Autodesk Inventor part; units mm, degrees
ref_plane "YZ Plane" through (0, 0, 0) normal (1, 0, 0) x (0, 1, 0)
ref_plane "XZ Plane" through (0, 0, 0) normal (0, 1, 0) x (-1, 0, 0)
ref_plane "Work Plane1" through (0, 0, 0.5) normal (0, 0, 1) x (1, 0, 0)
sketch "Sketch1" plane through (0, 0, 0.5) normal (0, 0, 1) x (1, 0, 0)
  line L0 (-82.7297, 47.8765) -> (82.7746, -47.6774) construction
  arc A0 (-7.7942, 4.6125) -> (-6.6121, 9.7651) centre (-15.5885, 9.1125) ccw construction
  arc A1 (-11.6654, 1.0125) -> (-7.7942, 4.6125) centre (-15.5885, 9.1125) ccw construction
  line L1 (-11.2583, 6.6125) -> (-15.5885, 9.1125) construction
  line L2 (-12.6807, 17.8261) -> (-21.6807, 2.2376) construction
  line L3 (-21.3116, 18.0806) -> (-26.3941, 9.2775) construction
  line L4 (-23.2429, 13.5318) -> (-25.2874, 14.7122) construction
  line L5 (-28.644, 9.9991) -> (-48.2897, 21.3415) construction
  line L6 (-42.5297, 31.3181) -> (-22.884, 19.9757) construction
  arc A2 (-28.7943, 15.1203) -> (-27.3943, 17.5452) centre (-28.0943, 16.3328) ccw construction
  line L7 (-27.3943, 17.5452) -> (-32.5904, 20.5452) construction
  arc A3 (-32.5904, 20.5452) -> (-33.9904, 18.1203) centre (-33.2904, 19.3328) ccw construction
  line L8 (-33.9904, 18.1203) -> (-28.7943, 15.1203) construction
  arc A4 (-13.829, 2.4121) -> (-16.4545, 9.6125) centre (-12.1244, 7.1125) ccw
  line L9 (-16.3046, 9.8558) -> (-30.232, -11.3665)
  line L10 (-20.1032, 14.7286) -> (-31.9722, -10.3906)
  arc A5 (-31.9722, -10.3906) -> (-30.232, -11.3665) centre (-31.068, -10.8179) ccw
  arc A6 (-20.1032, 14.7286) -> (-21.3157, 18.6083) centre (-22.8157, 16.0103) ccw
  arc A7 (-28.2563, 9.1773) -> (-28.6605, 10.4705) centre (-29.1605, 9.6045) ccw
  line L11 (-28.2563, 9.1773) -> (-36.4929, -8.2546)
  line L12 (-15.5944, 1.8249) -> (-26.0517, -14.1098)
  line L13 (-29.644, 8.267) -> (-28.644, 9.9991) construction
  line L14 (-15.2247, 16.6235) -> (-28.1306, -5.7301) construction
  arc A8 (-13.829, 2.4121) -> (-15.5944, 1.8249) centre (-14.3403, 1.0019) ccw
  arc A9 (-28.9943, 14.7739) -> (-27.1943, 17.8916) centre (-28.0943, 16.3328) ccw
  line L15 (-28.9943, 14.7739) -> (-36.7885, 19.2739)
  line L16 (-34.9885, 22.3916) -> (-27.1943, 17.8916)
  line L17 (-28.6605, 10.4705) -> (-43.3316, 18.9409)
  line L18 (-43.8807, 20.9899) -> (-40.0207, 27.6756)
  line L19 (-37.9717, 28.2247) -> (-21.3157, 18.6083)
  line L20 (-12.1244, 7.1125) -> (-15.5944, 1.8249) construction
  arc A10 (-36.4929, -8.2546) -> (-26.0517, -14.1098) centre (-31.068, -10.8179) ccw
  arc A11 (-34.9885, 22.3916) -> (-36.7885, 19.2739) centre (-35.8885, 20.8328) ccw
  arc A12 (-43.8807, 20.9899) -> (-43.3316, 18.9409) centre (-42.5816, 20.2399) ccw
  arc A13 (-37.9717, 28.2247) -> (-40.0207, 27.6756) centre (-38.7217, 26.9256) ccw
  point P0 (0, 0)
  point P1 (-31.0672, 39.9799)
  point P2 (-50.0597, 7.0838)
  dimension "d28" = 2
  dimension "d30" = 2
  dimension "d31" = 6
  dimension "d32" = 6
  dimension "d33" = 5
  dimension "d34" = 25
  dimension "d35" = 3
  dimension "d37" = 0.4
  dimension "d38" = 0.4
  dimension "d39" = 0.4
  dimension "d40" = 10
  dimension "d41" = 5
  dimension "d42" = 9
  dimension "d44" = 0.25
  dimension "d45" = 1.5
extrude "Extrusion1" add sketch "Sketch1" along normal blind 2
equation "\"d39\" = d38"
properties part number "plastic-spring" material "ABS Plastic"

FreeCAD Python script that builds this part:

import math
import FreeCAD as App
import Part
import Sketcher
Q = App.Units.Quantity

doc = App.newDocument("Part")
params = doc.addObject("Spreadsheet::Sheet", "Params")
for row, (alias, value) in enumerate([
    ("sketch1_radius", "5 mm"),
    ("sketch1_radius2", "1 mm"),
    ("sketch1_radius3", "3 mm"),
    ("sketch1_radius4", "6 mm"),
    ("sketch1_radius5", "1.5 mm"),
    ("pad1_length", "2 mm"),
], start=1):
    params.set(f"A{row}", alias)
    params.set(f"B{row}", "=" + value)
    params.setAlias(f"B{row}", alias)

body = doc.addObject("PartDesign::Body", "Body")

sketch1 = doc.addObject("Sketcher::SketchObject", "Sketch")
body.addObject(sketch1)
sketch1.AttachmentSupport = (doc.XY_Plane, [""])
sketch1.MapMode = "FlatFace"
sketch1.AttachmentOffset = App.Placement(App.Vector(0, 0, 0.5), App.Rotation())
sketch1.addGeometry(Part.ArcOfCircle(Part.Circle(App.Vector(-14.3403, 1.0019, 0), App.Vector(0, 0, 1), 1.500031), math.radians(70.070739), math.radians(146.725212)), False)
sketch1.addGeometry(Part.ArcOfCircle(Part.Circle(App.Vector(-12.1244, 7.1125, 0), App.Vector(0, 0, 1), 4.999942), math.radians(-109.933176), math.radians(146.724693)), False)
sketch1.addGeometry(Part.LineSegment(App.Vector(-16.3046, 9.8558, 0), App.Vector(-30.232, -11.3665, 0)), False)
sketch1.addGeometry(Part.ArcOfCircle(Part.Circle(App.Vector(-31.068, -10.8179, 0), App.Vector(0, 0, 1), 1.000081), math.radians(154.705873), math.radians(326.72631)), False)
sketch1.addGeometry(Part.LineSegment(App.Vector(-31.9722, -10.3906, 0), App.Vector(-20.1032, 14.7286, 0)), False)
sketch1.addGeometry(Part.ArcOfCircle(Part.Circle(App.Vector(-22.8157, 16.0103, 0), App.Vector(0, 0, 1), 3.000069), math.radians(-25.29149), math.radians(59.999272)), False)
sketch1.addGeometry(Part.LineSegment(App.Vector(-21.3157, 18.6083, 0), App.Vector(-37.9717, 28.2247, 0)), False)
sketch1.addGeometry(Part.ArcOfCircle(Part.Circle(App.Vector(-38.7217, 26.9256, 0), App.Vector(0, 0, 1), 1.500054), math.radians(60.001182), math.radians(149.999272)), False)
sketch1.addGeometry(Part.LineSegment(App.Vector(-40.0207, 27.6756, 0), App.Vector(-43.8807, 20.9899, 0)), False)
sketch1.addGeometry(Part.ArcOfCircle(Part.Circle(App.Vector(-42.5816, 20.2399, 0), App.Vector(0, 0, 1), 1.500054), math.radians(150.001182), math.radians(239.999272)), False)
sketch1.addGeometry(Part.LineSegment(App.Vector(-43.3316, 18.9409, 0), App.Vector(-28.6605, 10.4705, 0)), False)
sketch1.addGeometry(Part.ArcOfCircle(Part.Circle(App.Vector(-29.1605, 9.6045, 0), App.Vector(0, 0, 1), 1.000039), math.radians(-25.288947), math.radians(59.999272)), False)
sketch1.addGeometry(Part.LineSegment(App.Vector(-28.2563, 9.1773, 0), App.Vector(-36.4929, -8.2546, 0)), False)
sketch1.addGeometry(Part.ArcOfCircle(Part.Circle(App.Vector(-31.068, -10.8179, 0), App.Vector(0, 0, 1), 6.000004), math.radians(154.708966), math.radians(326.725486)), False)
sketch1.addGeometry(Part.LineSegment(App.Vector(-26.0517, -14.1098, 0), App.Vector(-15.5944, 1.8249, 0)), False)
sketch1.addGeometry(Part.ArcOfCircle(Part.Circle(App.Vector(-28.0943, 16.3328, 0), App.Vector(0, 0, 1), 1.800047), math.radians(-119.999136), math.radians(59.999272)), False)
sketch1.addGeometry(Part.LineSegment(App.Vector(-28.9943, 14.7739, 0), App.Vector(-36.7885, 19.2739, 0)), False)
sketch1.addGeometry(Part.ArcOfCircle(Part.Circle(App.Vector(-35.8885, 20.8328, 0), App.Vector(0, 0, 1), 1.79996), math.radians(59.999272), math.radians(240.000864)), False)
sketch1.addGeometry(Part.LineSegment(App.Vector(-34.9885, 22.3916, 0), App.Vector(-27.1943, 17.8916, 0)), False)
sketch1.addConstraint(Sketcher.Constraint("Tangent", 0, 1, 1, 1))
sketch1.addConstraint(Sketcher.Constraint("Tangent", 1, 2, 2, 1))
sketch1.addConstraint(Sketcher.Constraint("Tangent", 2, 2, 3, 2))
sketch1.addConstraint(Sketcher.Constraint("Tangent", 3, 1, 4, 1))
sketch1.addConstraint(Sketcher.Constraint("Tangent", 4, 2, 5, 1))
sketch1.addConstraint(Sketcher.Constraint("Tangent", 5, 2, 6, 1))
sketch1.addConstraint(Sketcher.Constraint("Tangent", 6, 2, 7, 1))
sketch1.addConstraint(Sketcher.Constraint("Tangent", 7, 2, 8, 1))
sketch1.addConstraint(Sketcher.Constraint("Tangent", 8, 2, 9, 1))
sketch1.addConstraint(Sketcher.Constraint("Tangent", 9, 2, 10, 1))
sketch1.addConstraint(Sketcher.Constraint("Tangent", 10, 2, 11, 2))
sketch1.addConstraint(Sketcher.Constraint("Tangent", 11, 1, 12, 1))
sketch1.addConstraint(Sketcher.Constraint("Tangent", 12, 2, 13, 1))
sketch1.addConstraint(Sketcher.Constraint("Tangent", 13, 2, 14, 1))
sketch1.addConstraint(Sketcher.Constraint("Tangent", 14, 2, 0, 2))
sketch1.addConstraint(Sketcher.Constraint("Tangent", 15, 1, 16, 1))
sketch1.addConstraint(Sketcher.Constraint("Tangent", 16, 2, 17, 2))
sketch1.addConstraint(Sketcher.Constraint("Tangent", 17, 1, 18, 1))
sketch1.addConstraint(Sketcher.Constraint("Tangent", 18, 2, 15, 2))
sketch1.addConstraint(Sketcher.Constraint("Coincident", 13, 3, 3, 3))
sketch1.addConstraint(Sketcher.Constraint("Equal", 0, 7))
sketch1.addConstraint(Sketcher.Constraint("Equal", 7, 9))
sketch1.addConstraint(Sketcher.Constraint("Equal", 3, 11))
sketch1.addConstraint(Sketcher.Constraint("Equal", 15, 17))
sketch1.addConstraint(Sketcher.Constraint("Perpendicular", 6, 8))
sketch1.addConstraint(Sketcher.Constraint("Perpendicular", 8, 10))
sketch1.addConstraint(Sketcher.Constraint("Parallel", 4, 12))
sketch1.addConstraint(Sketcher.Constraint("Parallel", 2, 14))
sketch1.addConstraint(Sketcher.Constraint("Parallel", 10, 16))
sketch1.addConstraint(Sketcher.Constraint("Radius", 1, Q("5 mm")))
sketch1.addConstraint(Sketcher.Constraint("Radius", 3, Q("1 mm")))
sketch1.addConstraint(Sketcher.Constraint("Radius", 5, Q("3 mm")))
sketch1.addConstraint(Sketcher.Constraint("Radius", 13, Q("6 mm")))
sketch1.addConstraint(Sketcher.Constraint("Radius", 0, Q("1.5 mm")))
sketch1.addConstraint(Sketcher.Constraint("Distance", 16, Q("9 mm")))
sketch1.addConstraint(Sketcher.Constraint("Radius", 15, Q("1.8 mm")))
sketch1.addConstraint(Sketcher.Constraint("DistanceX", 5, 3, 5, 2, Q("1.5 mm")))
sketch1.addConstraint(Sketcher.Constraint("Angle", 4, Q("64.709 deg")))
sketch1.addConstraint(Sketcher.Constraint("Distance", 8, Q("7.72 mm")))
sketch1.addConstraint(Sketcher.Constraint("DistanceY", -1, 1, 9, 3, Q("20.24 mm")))
sketch1.addConstraint(Sketcher.Constraint("DistanceX", 15, 3, 1, 3, Q("15.97 mm")))
sketch1.addConstraint(Sketcher.Constraint("DistanceX", 14, 2, 1, 3, Q("3.47 mm")))
sketch1.addConstraint(Sketcher.Constraint("DistanceY", -1, 1, 0, 3, Q("1.002 mm")))
sketch1.addConstraint(Sketcher.Constraint("DistanceX", 3, 3, -1, 1, Q("31.068 mm")))
sketch1.addConstraint(Sketcher.Constraint("DistanceY", 3, 3, -1, 1, Q("10.818 mm")))
sketch1.addConstraint(Sketcher.Constraint("DistanceY", -1, 1, 15, 1, Q("14.774 mm")))
sketch1.addConstraint(Sketcher.Constraint("DistanceX", 7, 3, 5, 3, Q("15.906 mm")))
sketch1.setExpression("Constraints[29]", "Params.sketch1_radius")
sketch1.setExpression("Constraints[30]", "Params.sketch1_radius2")
sketch1.setExpression("Constraints[31]", "Params.sketch1_radius3")
sketch1.setExpression("Constraints[32]", "Params.sketch1_radius4")
sketch1.setExpression("Constraints[33]", "Params.sketch1_radius5")
pad1 = doc.addObject("PartDesign::Pad", "Pad")
body.addObject(pad1)
pad1.Profile = sketch1
pad1.setExpression("Length", "Params.pad1_length")

doc.recompute()
